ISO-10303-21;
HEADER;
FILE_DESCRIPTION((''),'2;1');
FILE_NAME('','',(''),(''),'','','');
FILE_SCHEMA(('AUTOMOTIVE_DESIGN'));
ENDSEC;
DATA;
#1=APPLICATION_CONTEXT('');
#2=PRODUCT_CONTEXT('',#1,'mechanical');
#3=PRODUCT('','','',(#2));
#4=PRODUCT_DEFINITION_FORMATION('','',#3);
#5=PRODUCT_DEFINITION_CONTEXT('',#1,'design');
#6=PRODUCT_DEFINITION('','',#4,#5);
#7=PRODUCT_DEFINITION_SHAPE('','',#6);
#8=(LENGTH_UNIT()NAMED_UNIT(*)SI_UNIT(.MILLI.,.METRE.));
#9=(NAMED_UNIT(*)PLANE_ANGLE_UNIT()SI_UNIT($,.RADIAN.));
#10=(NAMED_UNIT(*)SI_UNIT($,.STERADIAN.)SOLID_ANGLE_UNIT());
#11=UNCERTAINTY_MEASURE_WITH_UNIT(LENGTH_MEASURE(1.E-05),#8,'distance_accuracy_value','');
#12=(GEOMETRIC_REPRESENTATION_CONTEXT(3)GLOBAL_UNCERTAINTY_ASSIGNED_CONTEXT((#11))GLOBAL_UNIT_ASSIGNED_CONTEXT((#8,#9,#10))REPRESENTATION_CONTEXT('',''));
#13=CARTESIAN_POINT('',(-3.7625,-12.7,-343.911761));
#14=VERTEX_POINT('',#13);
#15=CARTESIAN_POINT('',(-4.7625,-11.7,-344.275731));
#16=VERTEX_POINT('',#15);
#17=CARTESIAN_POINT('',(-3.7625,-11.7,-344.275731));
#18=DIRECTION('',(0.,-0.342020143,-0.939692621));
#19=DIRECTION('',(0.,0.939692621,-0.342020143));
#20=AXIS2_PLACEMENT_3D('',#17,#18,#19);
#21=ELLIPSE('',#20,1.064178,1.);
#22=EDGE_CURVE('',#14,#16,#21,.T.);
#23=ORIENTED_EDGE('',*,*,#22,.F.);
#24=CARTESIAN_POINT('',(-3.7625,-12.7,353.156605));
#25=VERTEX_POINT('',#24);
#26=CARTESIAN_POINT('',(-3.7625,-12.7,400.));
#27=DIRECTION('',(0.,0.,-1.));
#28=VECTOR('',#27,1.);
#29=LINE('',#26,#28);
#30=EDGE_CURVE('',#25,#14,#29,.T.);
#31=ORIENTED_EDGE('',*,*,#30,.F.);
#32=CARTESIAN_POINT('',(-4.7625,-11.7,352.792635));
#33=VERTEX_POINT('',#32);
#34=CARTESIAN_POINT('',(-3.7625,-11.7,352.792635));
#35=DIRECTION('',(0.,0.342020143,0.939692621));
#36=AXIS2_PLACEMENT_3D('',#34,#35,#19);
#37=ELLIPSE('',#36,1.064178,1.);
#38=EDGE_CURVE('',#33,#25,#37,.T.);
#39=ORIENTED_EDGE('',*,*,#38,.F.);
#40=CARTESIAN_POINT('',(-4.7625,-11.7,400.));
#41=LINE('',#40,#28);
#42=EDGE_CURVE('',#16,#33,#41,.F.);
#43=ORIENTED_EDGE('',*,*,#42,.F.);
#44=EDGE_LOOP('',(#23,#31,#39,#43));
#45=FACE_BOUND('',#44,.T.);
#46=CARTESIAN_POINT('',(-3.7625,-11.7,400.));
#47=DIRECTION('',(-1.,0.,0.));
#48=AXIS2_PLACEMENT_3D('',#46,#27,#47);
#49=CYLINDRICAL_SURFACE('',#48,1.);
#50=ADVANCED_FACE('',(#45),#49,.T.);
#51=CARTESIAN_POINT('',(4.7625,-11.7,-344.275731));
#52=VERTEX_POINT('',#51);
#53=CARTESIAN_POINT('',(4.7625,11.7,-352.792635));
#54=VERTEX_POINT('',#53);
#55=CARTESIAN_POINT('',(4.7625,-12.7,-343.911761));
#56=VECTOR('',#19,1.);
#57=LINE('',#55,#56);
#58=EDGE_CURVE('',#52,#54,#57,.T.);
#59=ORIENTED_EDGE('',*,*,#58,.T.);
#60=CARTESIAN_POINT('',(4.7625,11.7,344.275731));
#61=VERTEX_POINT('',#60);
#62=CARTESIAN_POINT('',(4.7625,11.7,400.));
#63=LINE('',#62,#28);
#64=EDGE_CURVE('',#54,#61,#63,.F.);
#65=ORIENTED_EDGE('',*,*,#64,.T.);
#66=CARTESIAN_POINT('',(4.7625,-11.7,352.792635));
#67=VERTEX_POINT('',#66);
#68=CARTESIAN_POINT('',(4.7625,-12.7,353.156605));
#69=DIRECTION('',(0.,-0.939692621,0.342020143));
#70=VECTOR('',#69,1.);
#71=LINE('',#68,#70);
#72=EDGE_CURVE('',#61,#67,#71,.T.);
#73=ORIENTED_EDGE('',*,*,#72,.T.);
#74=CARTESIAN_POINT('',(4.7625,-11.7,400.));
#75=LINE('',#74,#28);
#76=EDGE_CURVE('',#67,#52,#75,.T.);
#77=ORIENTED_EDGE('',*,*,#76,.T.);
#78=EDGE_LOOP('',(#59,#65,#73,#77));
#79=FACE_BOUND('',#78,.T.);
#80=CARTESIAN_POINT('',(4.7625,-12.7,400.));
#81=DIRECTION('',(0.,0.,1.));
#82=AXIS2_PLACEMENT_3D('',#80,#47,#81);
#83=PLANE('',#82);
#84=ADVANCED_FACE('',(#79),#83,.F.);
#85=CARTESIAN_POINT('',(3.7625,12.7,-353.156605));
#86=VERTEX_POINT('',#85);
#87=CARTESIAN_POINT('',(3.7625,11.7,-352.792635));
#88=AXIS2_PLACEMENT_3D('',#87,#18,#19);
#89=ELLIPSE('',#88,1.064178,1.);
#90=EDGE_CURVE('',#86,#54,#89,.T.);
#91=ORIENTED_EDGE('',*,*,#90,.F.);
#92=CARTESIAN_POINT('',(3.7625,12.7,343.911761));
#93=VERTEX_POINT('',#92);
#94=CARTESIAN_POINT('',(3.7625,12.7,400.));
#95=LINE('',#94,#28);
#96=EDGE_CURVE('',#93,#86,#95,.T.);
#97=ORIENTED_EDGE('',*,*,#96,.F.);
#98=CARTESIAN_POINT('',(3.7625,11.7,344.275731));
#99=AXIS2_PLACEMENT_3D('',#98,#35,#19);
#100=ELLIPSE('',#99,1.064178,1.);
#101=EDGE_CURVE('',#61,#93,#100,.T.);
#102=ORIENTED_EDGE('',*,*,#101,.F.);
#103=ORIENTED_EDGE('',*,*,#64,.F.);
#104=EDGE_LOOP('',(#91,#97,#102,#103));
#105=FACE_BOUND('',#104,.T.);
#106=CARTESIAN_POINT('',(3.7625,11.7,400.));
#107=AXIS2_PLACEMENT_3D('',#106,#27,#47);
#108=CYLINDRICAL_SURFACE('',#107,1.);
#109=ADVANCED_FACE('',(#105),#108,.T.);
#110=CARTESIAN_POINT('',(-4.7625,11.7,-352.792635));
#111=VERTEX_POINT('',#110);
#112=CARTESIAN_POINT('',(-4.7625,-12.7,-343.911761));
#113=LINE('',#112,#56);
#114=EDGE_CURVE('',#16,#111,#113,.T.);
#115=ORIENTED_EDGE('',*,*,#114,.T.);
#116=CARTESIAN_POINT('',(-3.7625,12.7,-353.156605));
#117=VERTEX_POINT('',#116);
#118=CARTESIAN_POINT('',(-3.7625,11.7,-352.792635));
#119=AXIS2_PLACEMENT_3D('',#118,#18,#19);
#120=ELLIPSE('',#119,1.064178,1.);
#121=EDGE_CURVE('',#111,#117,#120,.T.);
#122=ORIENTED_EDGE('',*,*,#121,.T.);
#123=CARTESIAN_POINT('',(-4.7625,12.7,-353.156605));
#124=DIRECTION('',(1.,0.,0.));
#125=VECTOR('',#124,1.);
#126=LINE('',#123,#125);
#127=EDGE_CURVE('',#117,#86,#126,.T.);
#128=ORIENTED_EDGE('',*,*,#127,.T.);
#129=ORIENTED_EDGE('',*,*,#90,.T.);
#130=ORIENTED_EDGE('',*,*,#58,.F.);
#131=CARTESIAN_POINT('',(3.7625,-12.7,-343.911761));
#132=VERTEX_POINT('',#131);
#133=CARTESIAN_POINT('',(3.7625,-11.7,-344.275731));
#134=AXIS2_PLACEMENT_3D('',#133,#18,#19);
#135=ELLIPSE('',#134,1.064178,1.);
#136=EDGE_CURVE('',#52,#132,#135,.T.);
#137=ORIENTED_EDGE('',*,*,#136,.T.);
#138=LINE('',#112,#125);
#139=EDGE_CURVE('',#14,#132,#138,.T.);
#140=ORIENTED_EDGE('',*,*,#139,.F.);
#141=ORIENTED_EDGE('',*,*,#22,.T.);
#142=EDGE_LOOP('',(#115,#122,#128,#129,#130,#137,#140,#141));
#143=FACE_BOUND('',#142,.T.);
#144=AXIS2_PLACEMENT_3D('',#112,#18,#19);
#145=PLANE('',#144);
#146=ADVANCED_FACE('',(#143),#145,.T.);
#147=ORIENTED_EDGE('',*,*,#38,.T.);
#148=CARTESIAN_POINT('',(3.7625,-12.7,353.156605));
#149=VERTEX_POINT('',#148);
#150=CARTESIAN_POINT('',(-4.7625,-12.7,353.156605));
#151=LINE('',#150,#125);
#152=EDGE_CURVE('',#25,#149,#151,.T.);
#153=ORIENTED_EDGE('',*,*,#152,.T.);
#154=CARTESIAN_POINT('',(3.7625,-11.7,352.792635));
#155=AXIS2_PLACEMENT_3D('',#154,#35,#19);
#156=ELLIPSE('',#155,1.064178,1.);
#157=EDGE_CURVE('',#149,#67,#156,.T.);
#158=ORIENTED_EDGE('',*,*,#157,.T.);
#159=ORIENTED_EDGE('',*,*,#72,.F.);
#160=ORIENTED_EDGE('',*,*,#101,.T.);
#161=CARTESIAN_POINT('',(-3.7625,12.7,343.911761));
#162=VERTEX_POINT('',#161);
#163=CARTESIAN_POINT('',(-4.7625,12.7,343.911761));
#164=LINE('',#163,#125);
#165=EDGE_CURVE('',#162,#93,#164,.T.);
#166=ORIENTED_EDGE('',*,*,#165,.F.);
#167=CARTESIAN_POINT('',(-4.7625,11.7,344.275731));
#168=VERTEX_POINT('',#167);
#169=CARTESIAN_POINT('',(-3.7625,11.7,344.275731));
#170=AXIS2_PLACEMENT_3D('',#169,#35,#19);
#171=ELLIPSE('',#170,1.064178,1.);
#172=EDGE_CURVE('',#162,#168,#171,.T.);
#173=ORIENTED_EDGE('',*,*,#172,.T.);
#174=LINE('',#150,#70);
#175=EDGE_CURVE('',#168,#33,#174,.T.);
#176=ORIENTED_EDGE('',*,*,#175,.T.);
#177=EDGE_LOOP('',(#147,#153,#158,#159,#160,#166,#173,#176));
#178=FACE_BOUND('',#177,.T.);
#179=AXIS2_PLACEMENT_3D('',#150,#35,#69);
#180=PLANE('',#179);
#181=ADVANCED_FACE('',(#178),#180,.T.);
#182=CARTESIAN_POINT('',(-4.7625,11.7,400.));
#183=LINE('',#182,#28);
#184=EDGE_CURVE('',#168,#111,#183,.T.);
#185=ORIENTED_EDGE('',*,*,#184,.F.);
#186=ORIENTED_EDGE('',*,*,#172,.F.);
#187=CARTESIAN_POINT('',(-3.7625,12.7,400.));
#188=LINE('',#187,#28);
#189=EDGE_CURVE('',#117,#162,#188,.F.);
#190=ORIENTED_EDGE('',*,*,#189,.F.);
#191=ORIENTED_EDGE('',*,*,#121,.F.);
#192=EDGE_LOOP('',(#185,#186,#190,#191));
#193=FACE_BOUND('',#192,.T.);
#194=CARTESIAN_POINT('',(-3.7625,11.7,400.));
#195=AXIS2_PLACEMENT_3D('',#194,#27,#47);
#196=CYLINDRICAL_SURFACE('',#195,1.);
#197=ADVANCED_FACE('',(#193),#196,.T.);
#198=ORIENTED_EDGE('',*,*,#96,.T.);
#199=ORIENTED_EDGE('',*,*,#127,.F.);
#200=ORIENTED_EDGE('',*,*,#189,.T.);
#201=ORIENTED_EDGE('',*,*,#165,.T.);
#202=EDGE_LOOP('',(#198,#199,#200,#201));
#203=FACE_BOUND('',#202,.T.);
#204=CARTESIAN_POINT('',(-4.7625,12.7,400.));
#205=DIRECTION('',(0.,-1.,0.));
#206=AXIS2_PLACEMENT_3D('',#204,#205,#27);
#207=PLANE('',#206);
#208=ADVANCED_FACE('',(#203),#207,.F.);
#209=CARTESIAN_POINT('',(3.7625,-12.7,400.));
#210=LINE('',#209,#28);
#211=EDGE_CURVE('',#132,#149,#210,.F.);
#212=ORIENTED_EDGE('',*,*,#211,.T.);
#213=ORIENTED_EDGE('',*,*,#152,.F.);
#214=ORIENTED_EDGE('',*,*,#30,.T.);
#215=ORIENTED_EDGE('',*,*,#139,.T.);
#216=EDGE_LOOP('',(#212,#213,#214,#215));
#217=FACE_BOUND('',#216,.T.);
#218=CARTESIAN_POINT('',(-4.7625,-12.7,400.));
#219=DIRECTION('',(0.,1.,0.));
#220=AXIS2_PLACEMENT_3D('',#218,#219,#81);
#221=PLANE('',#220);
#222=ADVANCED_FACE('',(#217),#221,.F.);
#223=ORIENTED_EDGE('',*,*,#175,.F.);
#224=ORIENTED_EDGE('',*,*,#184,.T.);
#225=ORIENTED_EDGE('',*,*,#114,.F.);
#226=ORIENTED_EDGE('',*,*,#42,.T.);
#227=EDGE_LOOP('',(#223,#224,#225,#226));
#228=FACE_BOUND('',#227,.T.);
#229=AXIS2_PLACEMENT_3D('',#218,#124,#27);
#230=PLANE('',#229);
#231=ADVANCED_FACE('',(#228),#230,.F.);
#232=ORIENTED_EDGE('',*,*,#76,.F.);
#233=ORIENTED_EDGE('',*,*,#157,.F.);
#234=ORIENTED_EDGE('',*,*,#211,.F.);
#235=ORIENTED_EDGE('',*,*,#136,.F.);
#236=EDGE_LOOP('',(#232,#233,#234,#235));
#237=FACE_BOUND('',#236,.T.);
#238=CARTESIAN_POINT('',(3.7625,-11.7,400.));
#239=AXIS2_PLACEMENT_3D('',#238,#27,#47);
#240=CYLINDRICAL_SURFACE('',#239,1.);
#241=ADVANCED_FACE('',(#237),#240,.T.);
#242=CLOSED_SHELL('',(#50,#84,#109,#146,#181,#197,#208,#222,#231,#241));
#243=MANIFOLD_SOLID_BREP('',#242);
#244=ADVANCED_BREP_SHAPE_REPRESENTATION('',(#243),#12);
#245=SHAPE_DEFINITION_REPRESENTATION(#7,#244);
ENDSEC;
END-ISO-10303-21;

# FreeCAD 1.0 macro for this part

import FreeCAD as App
import Part
import Sketcher

V = App.Vector
Q = App.Units.Quantity


def edges_at(feature, points):
    """Names of the edges that pass closest to the given points."""
    edges = feature.Shape.Edges
    near = lambda p: min(range(len(edges)), key=lambda i: edges[i].distToShape(Part.Vertex(*p))[0])
    return sorted({f"Edge{near(p) + 1}" for p in points})


def add_polygon(sketch, points):
    """Adds a closed chain of lines whose ends are joined by coincident constraints."""
    first, n = sketch.GeometryCount, len(points)
    for a, b in zip(points, points[1:] + points[:1]):
        sketch.addGeometry(Part.LineSegment(App.Vector(*a, 0), App.Vector(*b, 0)), False)
    for i in range(n):
        sketch.addConstraint(Sketcher.Constraint("Coincident", first + i, 2, first + (i + 1) % n, 1))

doc = App.newDocument("Part")
body = doc.addObject("PartDesign::Body", "Body")

# Sketch on XY plane
sketch1 = doc.addObject("Sketcher::SketchObject", "Sketch")
body.addObject(sketch1)
sketch1.AttachmentSupport = (doc.XY_Plane, [""])
sketch1.MapMode = "FlatFace"
add_polygon(sketch1, [(-5, 13), (-5, -13), (5, -13), (5, 13)])  # lines 0-3
sketch1.addConstraint([
    Sketcher.Constraint("Vertical", 0),
    Sketcher.Constraint("Horizontal", 1),
    Sketcher.Constraint("Vertical", 2),
    Sketcher.Constraint("Horizontal", 3),
    Sketcher.Constraint("Symmetric", 0, 2, 2, 2, -1, 1),
    Sketcher.Constraint("DistanceY", 0, 2, 0, 1, 25.4),
    Sketcher.Constraint("DistanceX", 1, 1, 1, 2, 9.525),
])
pad1 = doc.addObject("PartDesign::Pad", "Pad")
body.addObject(pad1)
pad1.Profile = sketch1
pad1.Length = 800
pad1.Midplane = True

# Sketch on YZ plane
sketch2 = doc.addObject("Sketcher::SketchObject", "Sketch001")
body.addObject(sketch2)
sketch2.AttachmentSupport = (doc.YZ_Plane, [""])
sketch2.MapMode = "FlatFace"
sketch2.AttachmentOffset = App.Placement(V(0, 0, 4.7625), App.Rotation())
add_polygon(sketch2, [(94, 481), (-94, 481), (-94, -481), (94, -481)])  # lines 0-3
add_polygon(sketch2, [(-13, -344), (-13, 353), (13, 344), (13, -353)])  # lines 4-7
sketch2.addConstraint([
    Sketcher.Constraint("Horizontal", 0),
    Sketcher.Constraint("Vertical", 1),
    Sketcher.Constraint("Horizontal", 2),
    Sketcher.Constraint("Vertical", 3),
    Sketcher.Constraint("Vertical", 4),
    Sketcher.Constraint("Vertical", 6),
    Sketcher.Constraint("Symmetric", 0, 2, 2, 2, -1, 1),
    Sketcher.Constraint("Symmetric", 4, 2, 6, 2, -1, 1),
    Sketcher.Constraint("Parallel", 5, 7),
    Sketcher.Constraint("Angle", 5, Q("-20 deg")),
    Sketcher.Constraint("DistanceX", 4, 2, -1, 1, 12.7),
    Sketcher.Constraint("DistanceX", 0, 2, 0, 1, 187.492),
    Sketcher.Constraint("DistanceY", 1, 2, 1, 1, 962.092),
    Sketcher.Constraint("DistanceY", 4, 1, 4, 2, 697.068366),
])
pocket1 = doc.addObject("PartDesign::Pocket", "Pocket")
body.addObject(pocket1)
pocket1.Profile = sketch2
pocket1.Type = "ThroughAll"
doc.recompute()

fillet = doc.addObject("PartDesign::Fillet", "Fillet")
body.addObject(fillet)
fillet.Base = (pocket1, edges_at(pocket1, [
    (4.763, -12.7, 4.622),
    (-4.763, -12.7, 4.622),
    (-4.763, 12.7, -4.622),
    (4.763, 12.7, -4.622),
]))
fillet.Radius = 1

doc.recompute()
